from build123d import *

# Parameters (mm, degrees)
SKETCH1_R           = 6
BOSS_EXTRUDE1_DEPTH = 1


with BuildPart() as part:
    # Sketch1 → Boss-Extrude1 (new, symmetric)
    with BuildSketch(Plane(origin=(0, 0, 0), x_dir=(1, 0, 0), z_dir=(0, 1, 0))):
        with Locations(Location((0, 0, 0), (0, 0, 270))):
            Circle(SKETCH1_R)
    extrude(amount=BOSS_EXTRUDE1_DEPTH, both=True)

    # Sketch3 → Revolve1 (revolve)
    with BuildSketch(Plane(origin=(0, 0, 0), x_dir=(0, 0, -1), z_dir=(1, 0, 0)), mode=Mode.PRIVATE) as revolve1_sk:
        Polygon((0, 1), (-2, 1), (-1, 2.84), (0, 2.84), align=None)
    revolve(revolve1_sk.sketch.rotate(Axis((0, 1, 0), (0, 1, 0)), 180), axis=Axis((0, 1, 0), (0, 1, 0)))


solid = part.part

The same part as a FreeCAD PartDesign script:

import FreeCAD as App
import Part
import Sketcher

V = App.Vector
Q = App.Units.Quantity

doc = App.newDocument("Part")
params = doc.addObject("Spreadsheet::Sheet", "Params")
for row, (alias, value) in enumerate([
    ("sketch1_diameter", "12 mm"),
    ("pad1_length", "2 mm"),
    ("sketch2_height", "2 mm"),
    ("sketch2_height2", "1 mm"),
    ("sketch2_width", "1.84 mm"),
    ("revolution_angle", "360 deg"),
], start=1):
    params.set(f"A{row}", alias)
    params.set(f"B{row}", "=" + value)
    params.setAlias(f"B{row}", alias)

body = doc.addObject("PartDesign::Body", "Body")

# Sketch on XZ plane
sketch1 = doc.addObject("Sketcher::SketchObject", "Sketch")
body.addObject(sketch1)
sketch1.AttachmentSupport = (doc.XZ_Plane, [""])
sketch1.MapMode = "FlatFace"
sketch1.addGeometry(Part.Circle(V(0, 0, 0), V(0, 0, 1), 6), False)
sketch1.addConstraint([
    Sketcher.Constraint("Coincident", 0, 3, -1, 1),
    Sketcher.Constraint("Diameter", 0, Q("12 mm")),
])
sketch1.setExpression("Constraints[1]", "Params.sketch1_diameter")
pad1 = doc.addObject("PartDesign::Pad", "Pad")
body.addObject(pad1)
pad1.Profile = sketch1
pad1.setExpression("Length", "Params.pad1_length")
pad1.Midplane = True

# Sketch on YZ plane
sketch2 = doc.addObject("Sketcher::SketchObject", "Sketch001")
body.addObject(sketch2)
sketch2.AttachmentSupport = (doc.YZ_Plane, [""])
sketch2.MapMode = "FlatFace"
sketch2.addGeometry([
    Part.LineSegment(V(1, 2, 0), V(1, 0, 0)),
    Part.LineSegment(V(1, 0, 0), V(2.84, 0, 0)),
    Part.LineSegment(V(2.84, 0, 0), V(2.84, 1, 0)),
    Part.LineSegment(V(2.84, 1, 0), V(1, 2, 0)),
], False)
sketch2.addConstraint([
    Sketcher.Constraint("Coincident", 0, 2, 1, 1),
    Sketcher.Constraint("Coincident", 1, 2, 2, 1),
    Sketcher.Constraint("Coincident", 2, 2, 3, 1),
    Sketcher.Constraint("Coincident", 3, 2, 0, 1),
    Sketcher.Constraint("Vertical", 0),
    Sketcher.Constraint("Horizontal", 1),
    Sketcher.Constraint("Vertical", 2),
    Sketcher.Constraint("PointOnObject", 0, 2, -1),
    Sketcher.Constraint("DistanceY", 0, 2, 0, 1, Q("2 mm")),
    Sketcher.Constraint("DistanceY", 2, 1, 2, 2, Q("1 mm")),
    Sketcher.Constraint("DistanceX", -1, 1, 0, 2, Q("1 mm")),
    Sketcher.Constraint("DistanceX", 1, 1, 1, 2, Q("1.84 mm")),
])
sketch2.setExpression("Constraints[8]", "Params.sketch2_height")
sketch2.setExpression("Constraints[9]", "Params.sketch2_height2")
sketch2.setExpression("Constraints[11]", "Params.sketch2_width")
revolution = doc.addObject("PartDesign::Revolution", "Revolution")
body.addObject(revolution)
revolution.Profile = sketch2
revolution.ReferenceAxis = (sketch2, ["H_Axis"])
revolution.setExpression("Angle", "Params.revolution_angle")

doc.recompute()
